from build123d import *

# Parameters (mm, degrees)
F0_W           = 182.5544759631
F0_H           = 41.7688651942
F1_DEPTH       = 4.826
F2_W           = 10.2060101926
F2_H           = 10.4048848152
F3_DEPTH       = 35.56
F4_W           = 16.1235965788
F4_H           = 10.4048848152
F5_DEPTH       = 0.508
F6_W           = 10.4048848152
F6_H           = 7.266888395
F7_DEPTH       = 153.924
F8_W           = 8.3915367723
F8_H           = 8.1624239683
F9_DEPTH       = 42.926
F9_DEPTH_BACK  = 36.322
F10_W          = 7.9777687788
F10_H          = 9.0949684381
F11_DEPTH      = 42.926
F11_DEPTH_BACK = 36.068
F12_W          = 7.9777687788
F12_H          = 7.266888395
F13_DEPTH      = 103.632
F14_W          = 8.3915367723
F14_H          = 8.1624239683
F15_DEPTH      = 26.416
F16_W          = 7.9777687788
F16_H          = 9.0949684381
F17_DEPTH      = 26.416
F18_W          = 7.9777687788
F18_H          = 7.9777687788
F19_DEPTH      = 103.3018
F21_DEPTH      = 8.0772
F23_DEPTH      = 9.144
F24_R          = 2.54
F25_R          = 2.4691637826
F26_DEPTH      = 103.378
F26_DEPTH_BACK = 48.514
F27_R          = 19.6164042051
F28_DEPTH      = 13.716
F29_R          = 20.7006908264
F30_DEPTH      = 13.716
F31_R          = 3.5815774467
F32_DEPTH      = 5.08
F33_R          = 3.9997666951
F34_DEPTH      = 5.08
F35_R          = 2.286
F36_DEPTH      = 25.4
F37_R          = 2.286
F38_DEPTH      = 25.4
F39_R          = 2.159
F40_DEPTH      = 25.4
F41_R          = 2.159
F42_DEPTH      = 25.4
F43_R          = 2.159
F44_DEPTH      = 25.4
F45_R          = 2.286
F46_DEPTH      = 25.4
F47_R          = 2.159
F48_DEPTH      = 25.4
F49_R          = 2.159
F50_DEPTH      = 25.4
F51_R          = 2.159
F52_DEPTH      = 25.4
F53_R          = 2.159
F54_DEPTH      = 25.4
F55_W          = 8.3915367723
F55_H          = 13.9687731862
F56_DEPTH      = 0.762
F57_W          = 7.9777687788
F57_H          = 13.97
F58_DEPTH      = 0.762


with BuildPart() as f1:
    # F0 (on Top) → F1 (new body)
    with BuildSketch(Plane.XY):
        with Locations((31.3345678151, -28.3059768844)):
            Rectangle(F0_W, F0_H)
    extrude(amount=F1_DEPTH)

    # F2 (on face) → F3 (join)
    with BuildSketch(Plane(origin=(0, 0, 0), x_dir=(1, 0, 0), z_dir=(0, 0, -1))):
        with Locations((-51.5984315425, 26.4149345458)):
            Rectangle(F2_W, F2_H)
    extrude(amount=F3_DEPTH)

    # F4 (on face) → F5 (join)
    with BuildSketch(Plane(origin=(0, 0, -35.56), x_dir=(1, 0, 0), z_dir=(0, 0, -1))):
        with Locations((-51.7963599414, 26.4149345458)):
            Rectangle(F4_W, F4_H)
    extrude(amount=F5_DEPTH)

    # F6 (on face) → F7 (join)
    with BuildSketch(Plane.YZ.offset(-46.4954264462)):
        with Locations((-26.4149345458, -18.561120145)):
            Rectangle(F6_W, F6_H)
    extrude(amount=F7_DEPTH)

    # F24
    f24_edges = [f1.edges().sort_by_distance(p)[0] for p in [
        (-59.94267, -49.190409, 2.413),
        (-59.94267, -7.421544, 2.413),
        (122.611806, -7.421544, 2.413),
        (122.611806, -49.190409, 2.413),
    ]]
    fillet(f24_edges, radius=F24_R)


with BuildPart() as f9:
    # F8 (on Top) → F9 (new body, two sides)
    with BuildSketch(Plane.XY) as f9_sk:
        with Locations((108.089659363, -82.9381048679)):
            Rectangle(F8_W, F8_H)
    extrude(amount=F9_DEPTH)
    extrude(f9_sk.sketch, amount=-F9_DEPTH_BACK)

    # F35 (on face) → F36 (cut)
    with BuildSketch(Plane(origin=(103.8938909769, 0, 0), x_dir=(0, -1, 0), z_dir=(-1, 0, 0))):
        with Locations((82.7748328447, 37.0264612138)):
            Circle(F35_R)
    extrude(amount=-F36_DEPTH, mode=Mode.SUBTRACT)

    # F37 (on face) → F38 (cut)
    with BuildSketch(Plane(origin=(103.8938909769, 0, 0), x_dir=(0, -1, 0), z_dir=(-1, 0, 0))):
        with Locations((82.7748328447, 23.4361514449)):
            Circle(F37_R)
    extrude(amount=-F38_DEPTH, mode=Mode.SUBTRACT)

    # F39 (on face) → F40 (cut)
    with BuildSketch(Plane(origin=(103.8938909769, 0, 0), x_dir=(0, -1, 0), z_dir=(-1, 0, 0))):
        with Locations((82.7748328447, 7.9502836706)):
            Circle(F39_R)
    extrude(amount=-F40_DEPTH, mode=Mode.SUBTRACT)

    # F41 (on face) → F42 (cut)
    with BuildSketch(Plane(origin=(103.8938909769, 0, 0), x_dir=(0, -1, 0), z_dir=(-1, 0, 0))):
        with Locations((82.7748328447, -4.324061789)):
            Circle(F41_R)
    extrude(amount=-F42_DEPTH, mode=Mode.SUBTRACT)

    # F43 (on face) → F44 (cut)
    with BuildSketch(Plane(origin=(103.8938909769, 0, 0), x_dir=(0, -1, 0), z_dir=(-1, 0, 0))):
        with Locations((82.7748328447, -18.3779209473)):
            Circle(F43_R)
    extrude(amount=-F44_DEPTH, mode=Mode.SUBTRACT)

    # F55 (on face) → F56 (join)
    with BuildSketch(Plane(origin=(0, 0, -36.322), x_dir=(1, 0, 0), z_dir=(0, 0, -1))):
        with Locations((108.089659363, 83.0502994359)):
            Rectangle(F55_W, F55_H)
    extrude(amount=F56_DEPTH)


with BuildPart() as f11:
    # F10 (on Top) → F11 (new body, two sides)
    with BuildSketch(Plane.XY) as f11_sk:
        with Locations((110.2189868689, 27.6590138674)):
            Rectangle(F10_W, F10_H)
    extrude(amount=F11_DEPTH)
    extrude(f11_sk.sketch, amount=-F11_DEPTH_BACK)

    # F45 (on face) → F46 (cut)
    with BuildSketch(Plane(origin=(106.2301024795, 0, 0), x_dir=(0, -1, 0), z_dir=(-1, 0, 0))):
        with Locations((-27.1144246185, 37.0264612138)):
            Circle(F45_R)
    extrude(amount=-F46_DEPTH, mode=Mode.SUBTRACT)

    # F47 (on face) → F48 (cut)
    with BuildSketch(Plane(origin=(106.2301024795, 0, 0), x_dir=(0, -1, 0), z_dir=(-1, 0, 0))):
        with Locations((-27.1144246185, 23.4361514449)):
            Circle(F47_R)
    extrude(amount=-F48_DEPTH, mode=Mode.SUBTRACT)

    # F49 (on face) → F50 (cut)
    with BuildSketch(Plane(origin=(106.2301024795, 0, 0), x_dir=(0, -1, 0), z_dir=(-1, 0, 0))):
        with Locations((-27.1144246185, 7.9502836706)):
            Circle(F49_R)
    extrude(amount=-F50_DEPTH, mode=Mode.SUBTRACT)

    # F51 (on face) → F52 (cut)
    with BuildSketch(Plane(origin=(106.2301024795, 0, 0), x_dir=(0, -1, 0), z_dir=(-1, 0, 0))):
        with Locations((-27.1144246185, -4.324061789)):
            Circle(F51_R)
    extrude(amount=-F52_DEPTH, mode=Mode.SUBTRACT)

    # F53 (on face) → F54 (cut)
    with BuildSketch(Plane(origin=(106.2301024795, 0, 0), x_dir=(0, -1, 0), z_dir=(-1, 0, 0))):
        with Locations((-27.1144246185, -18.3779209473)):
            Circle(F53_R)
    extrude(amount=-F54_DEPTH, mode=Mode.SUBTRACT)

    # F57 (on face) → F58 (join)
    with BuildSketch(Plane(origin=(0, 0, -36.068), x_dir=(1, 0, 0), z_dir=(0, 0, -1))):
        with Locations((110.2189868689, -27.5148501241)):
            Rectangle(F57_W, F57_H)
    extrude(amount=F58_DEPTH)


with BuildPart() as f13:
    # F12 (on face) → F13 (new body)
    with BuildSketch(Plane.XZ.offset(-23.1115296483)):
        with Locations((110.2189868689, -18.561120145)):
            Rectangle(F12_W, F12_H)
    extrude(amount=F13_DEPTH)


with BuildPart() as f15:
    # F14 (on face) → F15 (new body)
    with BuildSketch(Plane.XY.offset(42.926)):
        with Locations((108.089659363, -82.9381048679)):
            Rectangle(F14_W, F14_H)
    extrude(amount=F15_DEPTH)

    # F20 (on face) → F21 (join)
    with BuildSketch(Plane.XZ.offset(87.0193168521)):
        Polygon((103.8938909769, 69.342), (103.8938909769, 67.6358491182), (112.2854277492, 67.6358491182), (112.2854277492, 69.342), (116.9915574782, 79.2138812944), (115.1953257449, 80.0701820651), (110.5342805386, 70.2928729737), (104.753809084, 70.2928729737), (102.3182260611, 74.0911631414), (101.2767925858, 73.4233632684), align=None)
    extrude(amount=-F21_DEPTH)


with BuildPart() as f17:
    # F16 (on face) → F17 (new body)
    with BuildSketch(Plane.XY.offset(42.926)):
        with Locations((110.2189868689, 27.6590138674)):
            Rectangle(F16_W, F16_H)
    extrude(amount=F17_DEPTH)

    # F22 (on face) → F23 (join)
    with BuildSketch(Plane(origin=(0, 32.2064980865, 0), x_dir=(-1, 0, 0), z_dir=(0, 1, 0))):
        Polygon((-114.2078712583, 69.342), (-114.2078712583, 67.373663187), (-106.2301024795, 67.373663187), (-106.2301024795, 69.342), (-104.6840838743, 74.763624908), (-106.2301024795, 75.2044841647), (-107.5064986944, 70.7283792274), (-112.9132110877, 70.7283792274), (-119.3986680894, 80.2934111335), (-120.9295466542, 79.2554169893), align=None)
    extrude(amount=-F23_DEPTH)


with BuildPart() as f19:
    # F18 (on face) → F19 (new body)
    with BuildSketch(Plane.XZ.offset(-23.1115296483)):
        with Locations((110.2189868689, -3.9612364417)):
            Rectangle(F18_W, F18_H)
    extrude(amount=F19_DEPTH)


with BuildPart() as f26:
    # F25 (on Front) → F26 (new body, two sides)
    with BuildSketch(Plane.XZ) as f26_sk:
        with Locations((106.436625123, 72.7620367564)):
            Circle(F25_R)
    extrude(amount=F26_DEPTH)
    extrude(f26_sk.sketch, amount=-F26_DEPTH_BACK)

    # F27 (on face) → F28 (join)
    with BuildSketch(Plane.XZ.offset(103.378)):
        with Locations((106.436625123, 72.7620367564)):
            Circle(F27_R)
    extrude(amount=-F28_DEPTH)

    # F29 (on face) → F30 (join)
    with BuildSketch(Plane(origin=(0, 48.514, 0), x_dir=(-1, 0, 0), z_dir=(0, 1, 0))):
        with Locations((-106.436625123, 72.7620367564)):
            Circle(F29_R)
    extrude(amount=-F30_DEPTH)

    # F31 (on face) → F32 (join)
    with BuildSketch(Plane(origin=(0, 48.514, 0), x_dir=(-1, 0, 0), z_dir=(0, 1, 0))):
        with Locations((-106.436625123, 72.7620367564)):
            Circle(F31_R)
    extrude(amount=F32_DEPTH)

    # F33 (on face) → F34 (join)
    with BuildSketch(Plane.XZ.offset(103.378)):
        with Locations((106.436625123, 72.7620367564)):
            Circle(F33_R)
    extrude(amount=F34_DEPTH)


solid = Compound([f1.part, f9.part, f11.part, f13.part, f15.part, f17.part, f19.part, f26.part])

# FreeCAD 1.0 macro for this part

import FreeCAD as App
import Part
import Sketcher
Q = App.Units.Quantity


def edges_at(feature, points):
    """Names of the edges that pass closest to the given points."""
    edges = feature.Shape.Edges
    near = lambda p: min(range(len(edges)), key=lambda i: edges[i].distToShape(Part.Vertex(*p))[0])
    return sorted({f"Edge{near(p) + 1}" for p in points})


def add_polygon(sketch, points):
    """Adds a closed chain of lines whose ends are joined by coincident constraints."""
    first, n = sketch.GeometryCount, len(points)
    for a, b in zip(points, points[1:] + points[:1]):
        sketch.addGeometry(Part.LineSegment(App.Vector(*a, 0), App.Vector(*b, 0)), False)
    for i in range(n):
        sketch.addConstraint(Sketcher.Constraint("Coincident", first + i, 2, first + (i + 1) % n, 1))

doc = App.newDocument("Part")
params = doc.addObject("Spreadsheet::Sheet", "Params")
for row, (alias, value) in enumerate([
    ("pad1_length", "0.19 in"),
    ("pad2_length", "1.4 in"),
    ("pad3_length", "0.02 in"),
    ("pad4_length", "6.06 in"),
    ("fillet_radius", "0.1 in"),
    ("pad5_length", "1.69 in"),
    ("pad5_length2", "1.43 in"),
    ("sketch6_diameter", "0.18 in"),
    ("pocket1_length", "1 in"),
    ("sketch7_diameter", "0.18 in"),
    ("pocket2_length", "1 in"),
    ("sketch8_diameter", "0.17 in"),
    ("pocket3_length", "1 in"),
    ("sketch9_diameter", "0.17 in"),
    ("pocket4_length", "1 in"),
    ("sketch10_diameter", "0.17 in"),
    ("pocket5_length", "1 in"),
    ("pad6_length", "0.03 in"),
    ("pad7_length", "1.69 in"),
    ("pad7_length2", "1.42 in"),
    ("sketch13_diameter", "0.18 in"),
    ("pocket6_length", "1 in"),
    ("sketch14_diameter", "0.17 in"),
    ("pocket7_length", "1 in"),
    ("sketch15_diameter", "0.17 in"),
    ("pocket8_length", "1 in"),
    ("sketch16_diameter", "0.17 in"),
    ("pocket9_length", "1 in"),
    ("sketch17_diameter", "0.17 in"),
    ("pocket10_length", "1 in"),
    ("sketch18_height", "0.55 in"),
    ("pad8_length", "0.03 in"),
    ("pad9_length", "4.08 in"),
    ("pad10_length", "1.04 in"),
    ("pad11_length", "0.318 in"),
    ("pad12_length", "1.04 in"),
    ("pad13_length", "0.36 in"),
    ("pad14_length", "4.067 in"),
    ("pad15_length", "4.07 in"),
    ("pad15_length2", "1.91 in"),
    ("pad16_length", "0.54 in"),
    ("pad17_length", "0.54 in"),
    ("pad18_length", "0.2 in"),
    ("pad19_length", "0.2 in"),
], start=1):
    params.set(f"A{row}", alias)
    params.set(f"B{row}", "=" + value)
    params.setAlias(f"B{row}", alias)

body = doc.addObject("PartDesign::Body", "Body")

# Sketch on XY plane
sketch1 = doc.addObject("Sketcher::SketchObject", "Sketch")
body.addObject(sketch1)
sketch1.AttachmentSupport = (doc.XY_Plane, [""])
sketch1.MapMode = "FlatFace"
add_polygon(sketch1, [(-60, -7), (-60, -49), (123, -49), (123, -7)])  # lines 0-3
sketch1.addConstraint([
    Sketcher.Constraint("Vertical", 0),
    Sketcher.Constraint("Horizontal", 1),
    Sketcher.Constraint("Vertical", 2),
    Sketcher.Constraint("Horizontal", 3),
    Sketcher.Constraint("DistanceX", 1, 1, 1, 2, 182.554476),
    Sketcher.Constraint("DistanceY", 0, 2, 0, 1, 41.768865),
    Sketcher.Constraint("DistanceX", 0, 2, -1, 1, 59.94267),
    Sketcher.Constraint("DistanceY", 0, 2, -1, 1, 49.190409),
])
pad1 = doc.addObject("PartDesign::Pad", "Pad")
body.addObject(pad1)
pad1.Profile = sketch1
pad1.setExpression("Length", "Params.pad1_length")

# Sketch on XY plane
sketch2 = doc.addObject("Sketcher::SketchObject", "Sketch001")
body.addObject(sketch2)
sketch2.AttachmentSupport = (doc.XY_Plane, [""])
sketch2.MapMode = "FlatFace"
add_polygon(sketch2, [(-57, -32), (-57, -21), (-46, -21), (-46, -32)])  # lines 0-3
sketch2.addConstraint([
    Sketcher.Constraint("Vertical", 0),
    Sketcher.Constraint("Horizontal", 1),
    Sketcher.Constraint("Vertical", 2),
    Sketcher.Constraint("Horizontal", 3),
    Sketcher.Constraint("DistanceX", 1, 1, 1, 2, 10.20601),
    Sketcher.Constraint("DistanceY", 0, 1, 0, 2, 10.404885),
    Sketcher.Constraint("DistanceX", 0, 2, -1, 1, 56.701437),
    Sketcher.Constraint("DistanceY", 0, 2, -1, 1, 21.212492),
])
pad2 = doc.addObject("PartDesign::Pad", "Pad001")
body.addObject(pad2)
pad2.Profile = sketch2
pad2.setExpression("Length", "Params.pad2_length")
pad2.Reversed = True

# Sketch on XY plane
sketch3 = doc.addObject("Sketcher::SketchObject", "Sketch002")
body.addObject(sketch3)
sketch3.AttachmentSupport = (doc.XY_Plane, [""])
sketch3.MapMode = "FlatFace"
sketch3.AttachmentOffset = App.Placement(App.Vector(0, 0, -1.4 * 25.4), App.Rotation())
add_polygon(sketch3, [(-60, -32), (-60, -21), (-44, -21), (-44, -32)])  # lines 0-3
sketch3.addConstraint([
    Sketcher.Constraint("Vertical", 0),
    Sketcher.Constraint("Horizontal", 1),
    Sketcher.Constraint("Vertical", 2),
    Sketcher.Constraint("Horizontal", 3),
    Sketcher.Constraint("DistanceX", 1, 1, 1, 2, 16.123597),
    Sketcher.Constraint("DistanceY", 0, 1, 0, 2, 10.404885),
    Sketcher.Constraint("DistanceX", 0, 2, -1, 1, 59.858158),
    Sketcher.Constraint("DistanceY", 0, 2, -1, 1, 21.212492),
])
pad3 = doc.addObject("PartDesign::Pad", "Pad002")
body.addObject(pad3)
pad3.Profile = sketch3
pad3.setExpression("Length", "Params.pad3_length")
pad3.Reversed = True

# Sketch on YZ plane
sketch4 = doc.addObject("Sketcher::SketchObject", "Sketch003")
body.addObject(sketch4)
sketch4.AttachmentSupport = (doc.YZ_Plane, [""])
sketch4.MapMode = "FlatFace"
sketch4.AttachmentOffset = App.Placement(App.Vector(0, 0, -46.495426), App.Rotation())
add_polygon(sketch4, [(-32, -15), (-32, -22), (-21, -22), (-21, -15)])  # lines 0-3
sketch4.addConstraint([
    Sketcher.Constraint("Vertical", 0),
    Sketcher.Constraint("Horizontal", 1),
    Sketcher.Constraint("Vertical", 2),
    Sketcher.Constraint("Horizontal", 3),
    Sketcher.Constraint("DistanceY", 0, 2, 0, 1, 7.266888),
    Sketcher.Constraint("DistanceX", 1, 1, 1, 2, 10.404885),
    Sketcher.Constraint("DistanceX", 0, 2, -1, 1, 31.617377),
    Sketcher.Constraint("DistanceY", 0, 2, -1, 1, 22.194564),
])
pad4 = doc.addObject("PartDesign::Pad", "Pad003")
body.addObject(pad4)
pad4.Profile = sketch4
pad4.setExpression("Length", "Params.pad4_length")
doc.recompute()

fillet = doc.addObject("PartDesign::Fillet", "Fillet")
body.addObject(fillet)
fillet.Base = (pad4, edges_at(pad4, [
    (-59.943, -49.19, 2.413),
    (-59.943, -7.422, 2.413),
    (122.612, -7.422, 2.413),
    (122.612, -49.19, 2.413),
]))
fillet.setExpression("Radius", "Params.fillet_radius")
body2 = doc.addObject("PartDesign::Body", "Body001")

# Sketch on XY plane
sketch5 = doc.addObject("Sketcher::SketchObject", "Sketch004")
body2.addObject(sketch5)
sketch5.AttachmentSupport = (doc.getObject("XY_Plane001"), [""])
sketch5.MapMode = "FlatFace"
add_polygon(sketch5, [(104, -79), (104, -87), (112, -87), (112, -79)])  # lines 0-3
sketch5.addConstraint([
    Sketcher.Constraint("Vertical", 0),
    Sketcher.Constraint("Horizontal", 1),
    Sketcher.Constraint("Vertical", 2),
    Sketcher.Constraint("Horizontal", 3),
    Sketcher.Constraint("DistanceX", 1, 1, 1, 2, 8.391537),
    Sketcher.Constraint("DistanceY", 0, 2, 0, 1, 8.162424),
    Sketcher.Constraint("DistanceX", -1, 1, 0, 2, 103.893891),
    Sketcher.Constraint("DistanceY", 0, 2, -1, 1, 87.019317),
])
pad5 = doc.addObject("PartDesign::Pad", "Pad004")
body2.addObject(pad5)
pad5.Profile = sketch5
pad5.Type = "TwoLengths"
pad5.setExpression("Length", "Params.pad5_length")
pad5.setExpression("Length2", "Params.pad5_length2")

# Sketch on YZ plane
sketch6 = doc.addObject("Sketcher::SketchObject", "Sketch005")
body2.addObject(sketch6)
sketch6.AttachmentSupport = (doc.getObject("YZ_Plane001"), [""])
sketch6.MapMode = "FlatFace"
sketch6.AttachmentOffset = App.Placement(App.Vector(0, 0, 103.893891), App.Rotation())
sketch6.addGeometry(Part.Circle(App.Vector(-82.8, 37, 0), App.Vector(0, 0, 1), 2.3), False)
sketch6.addConstraint([
    Sketcher.Constraint("Diameter", 0, Q("0.18 in")),
    Sketcher.Constraint("DistanceY", -1, 1, 0, 3, 37.026461),
    Sketcher.Constraint("DistanceX", 0, 3, -1, 1, 82.774833),
])
sketch6.setExpression("Constraints[0]", "Params.sketch6_diameter")
pocket1 = doc.addObject("PartDesign::Pocket", "Pocket")
body2.addObject(pocket1)
pocket1.Profile = sketch6
pocket1.setExpression("Length", "Params.pocket1_length")
pocket1.Reversed = True

# Sketch on YZ plane
sketch7 = doc.addObject("Sketcher::SketchObject", "Sketch006")
body2.addObject(sketch7)
sketch7.AttachmentSupport = (doc.getObject("YZ_Plane001"), [""])
sketch7.MapMode = "FlatFace"
sketch7.AttachmentOffset = App.Placement(App.Vector(0, 0, 103.893891), App.Rotation())
sketch7.addGeometry(Part.Circle(App.Vector(-82.8, 23.4, 0), App.Vector(0, 0, 1), 2.3), False)
sketch7.addConstraint([
    Sketcher.Constraint("Diameter", 0, Q("0.18 in")),
    Sketcher.Constraint("DistanceY", -1, 1, 0, 3, 23.436151),
    Sketcher.Constraint("DistanceX", 0, 3, -1, 1, 82.774833),
])
sketch7.setExpression("Constraints[0]", "Params.sketch7_diameter")
pocket2 = doc.addObject("PartDesign::Pocket", "Pocket001")
body2.addObject(pocket2)
pocket2.Profile = sketch7
pocket2.setExpression("Length", "Params.pocket2_length")
pocket2.Reversed = True

# Sketch on YZ plane
sketch8 = doc.addObject("Sketcher::SketchObject", "Sketch007")
body2.addObject(sketch8)
sketch8.AttachmentSupport = (doc.getObject("YZ_Plane001"), [""])
sketch8.MapMode = "FlatFace"
sketch8.AttachmentOffset = App.Placement(App.Vector(0, 0, 103.893891), App.Rotation())
sketch8.addGeometry(Part.Circle(App.Vector(-82.8, 8, 0), App.Vector(0, 0, 1), 2.2), False)
sketch8.addConstraint([
    Sketcher.Constraint("Diameter", 0, Q("0.17 in")),
    Sketcher.Constraint("DistanceX", 0, 3, -1, 1, 82.774833),
    Sketcher.Constraint("DistanceY", -1, 1, 0, 3, 7.950284),
])
sketch8.setExpression("Constraints[0]", "Params.sketch8_diameter")
pocket3 = doc.addObject("PartDesign::Pocket", "Pocket002")
body2.addObject(pocket3)
pocket3.Profile = sketch8
pocket3.setExpression("Length", "Params.pocket3_length")
pocket3.Reversed = True

# Sketch on YZ plane
sketch9 = doc.addObject("Sketcher::SketchObject", "Sketch008")
body2.addObject(sketch9)
sketch9.AttachmentSupport = (doc.getObject("YZ_Plane001"), [""])
sketch9.MapMode = "FlatFace"
sketch9.AttachmentOffset = App.Placement(App.Vector(0, 0, 103.893891), App.Rotation())
sketch9.addGeometry(Part.Circle(App.Vector(-82.8, -4.3, 0), App.Vector(0, 0, 1), 2.2), False)
sketch9.addConstraint([
    Sketcher.Constraint("Diameter", 0, Q("0.17 in")),
    Sketcher.Constraint("DistanceY", 0, 3, -1, 1, 4.324062),
    Sketcher.Constraint("DistanceX", 0, 3, -1, 1, 82.774833),
])
sketch9.setExpression("Constraints[0]", "Params.sketch9_diameter")
pocket4 = doc.addObject("PartDesign::Pocket", "Pocket003")
body2.addObject(pocket4)
pocket4.Profile = sketch9
pocket4.setExpression("Length", "Params.pocket4_length")
pocket4.Reversed = True

# Sketch on YZ plane
sketch10 = doc.addObject("Sketcher::SketchObject", "Sketch009")
body2.addObject(sketch10)
sketch10.AttachmentSupport = (doc.getObject("YZ_Plane001"), [""])
sketch10.MapMode = "FlatFace"
sketch10.AttachmentOffset = App.Placement(App.Vector(0, 0, 103.893891), App.Rotation())
sketch10.addGeometry(Part.Circle(App.Vector(-82.8, -18.4, 0), App.Vector(0, 0, 1), 2.2), False)
sketch10.addConstraint([
    Sketcher.Constraint("Diameter", 0, Q("0.17 in")),
    Sketcher.Constraint("DistanceY", 0, 3, -1, 1, 18.377921),
    Sketcher.Constraint("DistanceX", 0, 3, -1, 1, 82.774833),
])
sketch10.setExpression("Constraints[0]", "Params.sketch10_diameter")
pocket5 = doc.addObject("PartDesign::Pocket", "Pocket004")
body2.addObject(pocket5)
pocket5.Profile = sketch10
pocket5.setExpression("Length", "Params.pocket5_length")
pocket5.Reversed = True

# Sketch on XY plane
sketch11 = doc.addObject("Sketcher::SketchObject", "Sketch010")
body2.addObject(sketch11)
sketch11.AttachmentSupport = (doc.getObject("XY_Plane001"), [""])
sketch11.MapMode = "FlatFace"
sketch11.AttachmentOffset = App.Placement(App.Vector(0, 0, -1.43 * 25.4), App.Rotation())
add_polygon(sketch11, [(104, -90), (104, -76), (112, -76), (112, -90)])  # lines 0-3
sketch11.addConstraint([
    Sketcher.Constraint("Vertical", 0),
    Sketcher.Constraint("Horizontal", 1),
    Sketcher.Constraint("Vertical", 2),
    Sketcher.Constraint("Horizontal", 3),
    Sketcher.Constraint("DistanceX", 1, 1, 1, 2, 8.391537),
    Sketcher.Constraint("DistanceY", 0, 1, 0, 2, 13.968773),
    Sketcher.Constraint("DistanceX", -1, 1, 0, 2, 103.893891),
    Sketcher.Constraint("DistanceY", 0, 2, -1, 1, 76.065913),
])
pad6 = doc.addObject("PartDesign::Pad", "Pad005")
body2.addObject(pad6)
pad6.Profile = sketch11
pad6.setExpression("Length", "Params.pad6_length")
pad6.Reversed = True
body3 = doc.addObject("PartDesign::Body", "Body002")

# Sketch on XY plane
sketch12 = doc.addObject("Sketcher::SketchObject", "Sketch011")
body3.addObject(sketch12)
sketch12.AttachmentSupport = (doc.getObject("XY_Plane002"), [""])
sketch12.MapMode = "FlatFace"
add_polygon(sketch12, [(106, 32), (106, 23), (114, 23), (114, 32)])  # lines 0-3
sketch12.addConstraint([
    Sketcher.Constraint("Vertical", 0),
    Sketcher.Constraint("Horizontal", 1),
    Sketcher.Constraint("Vertical", 2),
    Sketcher.Constraint("Horizontal", 3),
    Sketcher.Constraint("DistanceX", 1, 1, 1, 2, 7.977769),
    Sketcher.Constraint("DistanceY", 0, 2, 0, 1, 9.094968),
    Sketcher.Constraint("DistanceY", -1, 1, 2, 2, 32.206498),
    Sketcher.Constraint("DistanceX", -1, 1, 1, 2, 114.207871),
])
pad7 = doc.addObject("PartDesign::Pad", "Pad006")
body3.addObject(pad7)
pad7.Profile = sketch12
pad7.Type = "TwoLengths"
pad7.setExpression("Length", "Params.pad7_length")
pad7.setExpression("Length2", "Params.pad7_length2")

# Sketch on YZ plane
sketch13 = doc.addObject("Sketcher::SketchObject", "Sketch012")
body3.addObject(sketch13)
sketch13.AttachmentSupport = (doc.getObject("YZ_Plane002"), [""])
sketch13.MapMode = "FlatFace"
sketch13.AttachmentOffset = App.Placement(App.Vector(0, 0, 106.230102), App.Rotation())
sketch13.addGeometry(Part.Circle(App.Vector(27.1, 37, 0), App.Vector(0, 0, 1), 2.3), False)
sketch13.addConstraint([
    Sketcher.Constraint("Diameter", 0, Q("0.18 in")),
    Sketcher.Constraint("DistanceY", -1, 1, 0, 3, 37.026461),
    Sketcher.Constraint("DistanceX", -1, 1, 0, 3, 27.114425),
])
sketch13.setExpression("Constraints[0]", "Params.sketch13_diameter")
pocket6 = doc.addObject("PartDesign::Pocket", "Pocket005")
body3.addObject(pocket6)
pocket6.Profile = sketch13
pocket6.setExpression("Length", "Params.pocket6_length")
pocket6.Reversed = True

# Sketch on YZ plane
sketch14 = doc.addObject("Sketcher::SketchObject", "Sketch013")
body3.addObject(sketch14)
sketch14.AttachmentSupport = (doc.getObject("YZ_Plane002"), [""])
sketch14.MapMode = "FlatFace"
sketch14.AttachmentOffset = App.Placement(App.Vector(0, 0, 106.230102), App.Rotation())
sketch14.addGeometry(Part.Circle(App.Vector(27.1, 23.4, 0), App.Vector(0, 0, 1), 2.2), False)
sketch14.addConstraint([
    Sketcher.Constraint("Diameter", 0, Q("0.17 in")),
    Sketcher.Constraint("DistanceY", -1, 1, 0, 3, 23.436151),
    Sketcher.Constraint("DistanceX", -1, 1, 0, 3, 27.114425),
])
sketch14.setExpression("Constraints[0]", "Params.sketch14_diameter")
pocket7 = doc.addObject("PartDesign::Pocket", "Pocket006")
body3.addObject(pocket7)
pocket7.Profile = sketch14
pocket7.setExpression("Length", "Params.pocket7_length")
pocket7.Reversed = True

# Sketch on YZ plane
sketch15 = doc.addObject("Sketcher::SketchObject", "Sketch014")
body3.addObject(sketch15)
sketch15.AttachmentSupport = (doc.getObject("YZ_Plane002"), [""])
sketch15.MapMode = "FlatFace"
sketch15.AttachmentOffset = App.Placement(App.Vector(0, 0, 106.230102), App.Rotation())
sketch15.addGeometry(Part.Circle(App.Vector(27.1, 8, 0), App.Vector(0, 0, 1), 2.2), False)
sketch15.addConstraint([
    Sketcher.Constraint("Diameter", 0, Q("0.17 in")),
    Sketcher.Constraint("DistanceX", -1, 1, 0, 3, 27.114425),
    Sketcher.Constraint("DistanceY", -1, 1, 0, 3, 7.950284),
])
sketch15.setExpression("Constraints[0]", "Params.sketch15_diameter")
pocket8 = doc.addObject("PartDesign::Pocket", "Pocket007")
body3.addObject(pocket8)
pocket8.Profile = sketch15
pocket8.setExpression("Length", "Params.pocket8_length")
pocket8.Reversed = True

# Sketch on YZ plane
sketch16 = doc.addObject("Sketcher::SketchObject", "Sketch015")
body3.addObject(sketch16)
sketch16.AttachmentSupport = (doc.getObject("YZ_Plane002"), [""])
sketch16.MapMode = "FlatFace"
sketch16.AttachmentOffset = App.Placement(App.Vector(0, 0, 106.230102), App.Rotation())
sketch16.addGeometry(Part.Circle(App.Vector(27.1, -4.3, 0), App.Vector(0, 0, 1), 2.2), False)
sketch16.addConstraint([
    Sketcher.Constraint("Diameter", 0, Q("0.17 in")),
    Sketcher.Constraint("DistanceY", 0, 3, -1, 1, 4.324062),
    Sketcher.Constraint("DistanceX", -1, 1, 0, 3, 27.114425),
])
sketch16.setExpression("Constraints[0]", "Params.sketch16_diameter")
pocket9 = doc.addObject("PartDesign::Pocket", "Pocket008")
body3.addObject(pocket9)
pocket9.Profile = sketch16
pocket9.setExpression("Length", "Params.pocket9_length")
pocket9.Reversed = True

# Sketch on YZ plane
sketch17 = doc.addObject("Sketcher::SketchObject", "Sketch016")
body3.addObject(sketch17)
sketch17.AttachmentSupport = (doc.getObject("YZ_Plane002"), [""])
sketch17.MapMode = "FlatFace"
sketch17.AttachmentOffset = App.Placement(App.Vector(0, 0, 106.230102), App.Rotation())
sketch17.addGeometry(Part.Circle(App.Vector(27.1, -18.4, 0), App.Vector(0, 0, 1), 2.2), False)
sketch17.addConstraint([
    Sketcher.Constraint("Diameter", 0, Q("0.17 in")),
    Sketcher.Constraint("DistanceY", 0, 3, -1, 1, 18.377921),
    Sketcher.Constraint("DistanceX", -1, 1, 0, 3, 27.114425),
])
sketch17.setExpression("Constraints[0]", "Params.sketch17_diameter")
pocket10 = doc.addObject("PartDesign::Pocket", "Pocket009")
body3.addObject(pocket10)
pocket10.Profile = sketch17
pocket10.setExpression("Length", "Params.pocket10_length")
pocket10.Reversed = True

# Sketch on XY plane
sketch18 = doc.addObject("Sketcher::SketchObject", "Sketch017")
body3.addObject(sketch18)
sketch18.AttachmentSupport = (doc.getObject("XY_Plane002"), [""])
sketch18.MapMode = "FlatFace"
sketch18.AttachmentOffset = App.Placement(App.Vector(0, 0, -1.42 * 25.4), App.Rotation())
add_polygon(sketch18, [(106, 21), (106, 34), (114, 34), (114, 21)])  # lines 0-3
sketch18.addConstraint([
    Sketcher.Constraint("Vertical", 0),
    Sketcher.Constraint("Horizontal", 1),
    Sketcher.Constraint("Vertical", 2),
    Sketcher.Constraint("Horizontal", 3),
    Sketcher.Constraint("DistanceY", 0, 1, 0, 2, Q("0.55 in")),
    Sketcher.Constraint("DistanceX", 1, 1, 1, 2, 7.977769),
    Sketcher.Constraint("DistanceY", -1, 1, 0, 2, 34.49985),
    Sketcher.Constraint("DistanceX", -1, 1, 1, 2, 114.207871),
])
sketch18.setExpression("Constraints[8]", "Params.sketch18_height")
pad8 = doc.addObject("PartDesign::Pad", "Pad007")
body3.addObject(pad8)
pad8.Profile = sketch18
pad8.setExpression("Length", "Params.pad8_length")
pad8.Reversed = True
body4 = doc.addObject("PartDesign::Body", "Body003")

# Sketch on XZ plane
sketch19 = doc.addObject("Sketcher::SketchObject", "Sketch018")
body4.addObject(sketch19)
sketch19.AttachmentSupport = (doc.getObject("XZ_Plane003"), [""])
sketch19.MapMode = "FlatFace"
sketch19.AttachmentOffset = App.Placement(App.Vector(0, 0, -23.11153), App.Rotation())
add_polygon(sketch19, [(106, -15), (106, -22), (114, -22), (114, -15)])  # lines 0-3
sketch19.addConstraint([
    Sketcher.Constraint("Vertical", 0),
    Sketcher.Constraint("Horizontal", 1),
    Sketcher.Constraint("Vertical", 2),
    Sketcher.Constraint("Horizontal", 3),
    Sketcher.Constraint("DistanceX", 1, 1, 1, 2, 7.977769),
    Sketcher.Constraint("DistanceY", 0, 2, 0, 1, 7.266888),
    Sketcher.Constraint("DistanceX", -1, 1, 1, 2, 114.207871),
    Sketcher.Constraint("DistanceY", 0, 2, -1, 1, 22.194564),
])
pad9 = doc.addObject("PartDesign::Pad", "Pad008")
body4.addObject(pad9)
pad9.Profile = sketch19
pad9.setExpression("Length", "Params.pad9_length")
body5 = doc.addObject("PartDesign::Body", "Body004")

# Sketch on XY plane
sketch20 = doc.addObject("Sketcher::SketchObject", "Sketch019")
body5.addObject(sketch20)
sketch20.AttachmentSupport = (doc.getObject("XY_Plane004"), [""])
sketch20.MapMode = "FlatFace"
sketch20.AttachmentOffset = App.Placement(App.Vector(0, 0, 1.69 * 25.4), App.Rotation())
add_polygon(sketch20, [(104, -79), (104, -87), (112, -87), (112, -79)])  # lines 0-3
sketch20.addConstraint([
    Sketcher.Constraint("Vertical", 0),
    Sketcher.Constraint("Horizontal", 1),
    Sketcher.Constraint("Vertical", 2),
    Sketcher.Constraint("Horizontal", 3),
    Sketcher.Constraint("DistanceX", 1, 1, 1, 2, 8.391537),
    Sketcher.Constraint("DistanceY", 0, 2, 0, 1, 8.162424),
    Sketcher.Constraint("DistanceX", -1, 1, 0, 2, 103.893891),
    Sketcher.Constraint("DistanceY", 0, 2, -1, 1, 87.019317),
])
pad10 = doc.addObject("PartDesign::Pad", "Pad009")
body5.addObject(pad10)
pad10.Profile = sketch20
pad10.setExpression("Length", "Params.pad10_length")

# Sketch on XZ plane
sketch21 = doc.addObject("Sketcher::SketchObject", "Sketch020")
body5.addObject(sketch21)
sketch21.AttachmentSupport = (doc.getObject("XZ_Plane004"), [""])
sketch21.MapMode = "FlatFace"
sketch21.AttachmentOffset = App.Placement(App.Vector(0, 0, 87.019317), App.Rotation())
add_polygon(sketch21, [(103.9, 69.3), (103.9, 67.6), (112.3, 67.6), (112.3, 69.3), (117, 79.2), (115.2, 80.1), (110.5, 70.3), (104.8, 70.3), (102.3, 74.1), (101.3, 73.4)])  # lines 0-9
sketch21.addConstraint([
    Sketcher.Constraint("Vertical", 0),
    Sketcher.Constraint("Horizontal", 1),
    Sketcher.Constraint("Vertical", 2),
    Sketcher.Constraint("Horizontal", 6),
    Sketcher.Constraint("Perpendicular", 3, 4),
    Sketcher.Constraint("Perpendicular", 4, 5),
    Sketcher.Constraint("Perpendicular", 7, 8),
    Sketcher.Constraint("Perpendicular", 8, 9),
    Sketcher.Constraint("Horizontal", 2, 2, 9, 2),
    Sketcher.Constraint("DistanceY", -1, 1, 2, 2, Q("2.73 in")),
    Sketcher.Constraint("Distance", 4, 1.989899),
    Sketcher.Constraint("DistanceX", 6, 2, 6, 1, 5.780471),
    Sketcher.Constraint("DistanceY", 0, 2, 0, 1, 1.706151),
    Sketcher.Constraint("DistanceY", 3, 2, 4, 2, 0.856301),
    Sketcher.Constraint("DistanceX", 7, 2, 2, 2, 9.967202),
    Sketcher.Constraint("DistanceY", 8, 2, 7, 2, 0.6678),
    Sketcher.Constraint("DistanceX", 8, 2, 0, 2, 2.617098),
    Sketcher.Constraint("Distance", 8, 1.23715),
    Sketcher.Constraint("DistanceX", -1, 1, 0, 2, 103.893891),
    Sketcher.Constraint("DistanceY", -1, 1, 3, 2, 79.213881),
])
pad11 = doc.addObject("PartDesign::Pad", "Pad010")
body5.addObject(pad11)
pad11.Profile = sketch21
pad11.setExpression("Length", "Params.pad11_length")
pad11.Reversed = True
body6 = doc.addObject("PartDesign::Body", "Body005")

# Sketch on XY plane
sketch22 = doc.addObject("Sketcher::SketchObject", "Sketch021")
body6.addObject(sketch22)
sketch22.AttachmentSupport = (doc.getObject("XY_Plane005"), [""])
sketch22.MapMode = "FlatFace"
sketch22.AttachmentOffset = App.Placement(App.Vector(0, 0, 1.69 * 25.4), App.Rotation())
add_polygon(sketch22, [(106, 32), (106, 23), (114, 23), (114, 32)])  # lines 0-3
sketch22.addConstraint([
    Sketcher.Constraint("Vertical", 0),
    Sketcher.Constraint("Horizontal", 1),
    Sketcher.Constraint("Vertical", 2),
    Sketcher.Constraint("Horizontal", 3),
    Sketcher.Constraint("DistanceX", 1, 1, 1, 2, 7.977769),
    Sketcher.Constraint("DistanceY", 0, 2, 0, 1, 9.094968),
    Sketcher.Constraint("DistanceY", -1, 1, 2, 2, 32.206498),
    Sketcher.Constraint("DistanceX", -1, 1, 1, 2, 114.207871),
])
pad12 = doc.addObject("PartDesign::Pad", "Pad011")
body6.addObject(pad12)
pad12.Profile = sketch22
pad12.setExpression("Length", "Params.pad12_length")

# Sketch on XZ plane
sketch23 = doc.addObject("Sketcher::SketchObject", "Sketch022")
body6.addObject(sketch23)
sketch23.AttachmentSupport = (doc.getObject("XZ_Plane005"), [""])
sketch23.MapMode = "FlatFace"
sketch23.AttachmentOffset = App.Placement(App.Vector(0, 0, -32.206498), App.Rotation())
add_polygon(sketch23, [(114.2, 69.3), (114.2, 67.4), (106.2, 67.4), (106.2, 69.3), (104.7, 74.8), (106.2, 75.2), (107.5, 70.7), (112.9, 70.7), (119.4, 80.3), (120.9, 79.3)])  # lines 0-9
sketch23.addConstraint([
    Sketcher.Constraint("Vertical", 0),
    Sketcher.Constraint("Horizontal", 1),
    Sketcher.Constraint("Vertical", 2),
    Sketcher.Constraint("Horizontal", 6),
    Sketcher.Constraint("Perpendicular", 3, 4),
    Sketcher.Constraint("Perpendicular", 4, 5),
    Sketcher.Constraint("Perpendicular", 7, 8),
    Sketcher.Constraint("Perpendicular", 8, 9),
    Sketcher.Constraint("Horizontal", 2, 2, 9, 2),
    Sketcher.Constraint("Vertical", 2, 2, 4, 2),
    Sketcher.Constraint("DistanceY", -1, 1, 2, 2, Q("2.73 in")),
    Sketcher.Constraint("DistanceY", 1, 2, 4, 2, Q("0.3083 in")),
    Sketcher.Constraint("Distance", 8, 1.8496),
    Sketcher.Constraint("DistanceX", 1, 2, 1, 1, 7.977769),
    Sketcher.Constraint("DistanceX", -1, 1, 5, 2, 107.506499),
    Sketcher.Constraint("DistanceX", 6, 1, 6, 2, 5.406712),
    Sketcher.Constraint("DistanceY", 0, 2, 0, 1, 1.968337),
    Sketcher.Constraint("DistanceX", -1, 1, 0, 2, 114.207871),
    Sketcher.Constraint("DistanceY", -1, 1, 5, 2, 70.728379),
    Sketcher.Constraint("DistanceX", -1, 1, 7, 2, 119.398668),
])
pad13 = doc.addObject("PartDesign::Pad", "Pad012")
body6.addObject(pad13)
pad13.Profile = sketch23
pad13.setExpression("Length", "Params.pad13_length")
body7 = doc.addObject("PartDesign::Body", "Body006")

# Sketch on XZ plane
sketch24 = doc.addObject("Sketcher::SketchObject", "Sketch023")
body7.addObject(sketch24)
sketch24.AttachmentSupport = (doc.getObject("XZ_Plane006"), [""])
sketch24.MapMode = "FlatFace"
sketch24.AttachmentOffset = App.Placement(App.Vector(0, 0, -23.11153), App.Rotation())
add_polygon(sketch24, [(106, 0), (106, -8), (114, -8), (114, 0)])  # lines 0-3
sketch24.addConstraint([
    Sketcher.Constraint("Vertical", 0),
    Sketcher.Constraint("Horizontal", 1),
    Sketcher.Constraint("Vertical", 2),
    Sketcher.Constraint("Horizontal", 3),
    Sketcher.Constraint("Equal", 3, 0),
    Sketcher.Constraint("DistanceX", 1, 1, 1, 2, 7.977769),
    Sketcher.Constraint("DistanceY", 0, 2, -1, 1, 7.950121),
    Sketcher.Constraint("DistanceX", -1, 1, 1, 2, 114.207871),
])
pad14 = doc.addObject("PartDesign::Pad", "Pad013")
body7.addObject(pad14)
pad14.Profile = sketch24
pad14.setExpression("Length", "Params.pad14_length")
body8 = doc.addObject("PartDesign::Body", "Body007")

# Sketch on XZ plane
sketch25 = doc.addObject("Sketcher::SketchObject", "Sketch024")
body8.addObject(sketch25)
sketch25.AttachmentSupport = (doc.getObject("XZ_Plane007"), [""])
sketch25.MapMode = "FlatFace"
sketch25.addGeometry(Part.Circle(App.Vector(106.4, 72.8, 0), App.Vector(0, 0, 1), 2.5), False)
sketch25.addConstraint([
    Sketcher.Constraint("Diameter", 0, 4.938328),
    Sketcher.Constraint("DistanceX", -1, 1, 0, 3, 106.436625),
    Sketcher.Constraint("DistanceY", -1, 1, 0, 3, 72.762037),
])
pad15 = doc.addObject("PartDesign::Pad", "Pad014")
body8.addObject(pad15)
pad15.Profile = sketch25
pad15.Type = "TwoLengths"
pad15.setExpression("Length", "Params.pad15_length")
pad15.setExpression("Length2", "Params.pad15_length2")

# Sketch on XZ plane
sketch26 = doc.addObject("Sketcher::SketchObject", "Sketch025")
body8.addObject(sketch26)
sketch26.AttachmentSupport = (doc.getObject("XZ_Plane007"), [""])
sketch26.MapMode = "FlatFace"
sketch26.AttachmentOffset = App.Placement(App.Vector(0, 0, 4.07 * 25.4), App.Rotation())
sketch26.addGeometry(Part.Circle(App.Vector(106, 73, 0), App.Vector(0, 0, 1), 20), False)
sketch26.addConstraint([
    Sketcher.Constraint("Diameter", 0, 39.232808),
    Sketcher.Constraint("DistanceX", -1, 1, 0, 3, 106.436625),
    Sketcher.Constraint("DistanceY", -1, 1, 0, 3, 72.762037),
])
pad16 = doc.addObject("PartDesign::Pad", "Pad015")
body8.addObject(pad16)
pad16.Profile = sketch26
pad16.setExpression("Length", "Params.pad16_length")
pad16.Reversed = True

# Sketch on XZ plane
sketch27 = doc.addObject("Sketcher::SketchObject", "Sketch026")
body8.addObject(sketch27)
sketch27.AttachmentSupport = (doc.getObject("XZ_Plane007"), [""])
sketch27.MapMode = "FlatFace"
sketch27.AttachmentOffset = App.Placement(App.Vector(0, 0, -1.91 * 25.4), App.Rotation())
sketch27.addGeometry(Part.Circle(App.Vector(106, 73, 0), App.Vector(0, 0, 1), 21), False)
sketch27.addConstraint([
    Sketcher.Constraint("Diameter", 0, 41.401382),
    Sketcher.Constraint("DistanceX", -1, 1, 0, 3, 106.436625),
    Sketcher.Constraint("DistanceY", -1, 1, 0, 3, 72.762037),
])
pad17 = doc.addObject("PartDesign::Pad", "Pad016")
body8.addObject(pad17)
pad17.Profile = sketch27
pad17.setExpression("Length", "Params.pad17_length")

# Sketch on XZ plane
sketch28 = doc.addObject("Sketcher::SketchObject", "Sketch027")
body8.addObject(sketch28)
sketch28.AttachmentSupport = (doc.getObject("XZ_Plane007"), [""])
sketch28.MapMode = "FlatFace"
sketch28.AttachmentOffset = App.Placement(App.Vector(0, 0, -1.91 * 25.4), App.Rotation())
sketch28.addGeometry(Part.Circle(App.Vector(106.4, 72.8, 0), App.Vector(0, 0, 1), 3.6), False)
sketch28.addConstraint([
    Sketcher.Constraint("Diameter", 0, 7.163155),
    Sketcher.Constraint("DistanceX", -1, 1, 0, 3, 106.436625),
    Sketcher.Constraint("DistanceY", -1, 1, 0, 3, 72.762037),
])
pad18 = doc.addObject("PartDesign::Pad", "Pad017")
body8.addObject(pad18)
pad18.Profile = sketch28
pad18.setExpression("Length", "Params.pad18_length")
pad18.Reversed = True

# Sketch on XZ plane
sketch29 = doc.addObject("Sketcher::SketchObject", "Sketch028")
body8.addObject(sketch29)
sketch29.AttachmentSupport = (doc.getObject("XZ_Plane007"), [""])
sketch29.MapMode = "FlatFace"
sketch29.AttachmentOffset = App.Placement(App.Vector(0, 0, 4.07 * 25.4), App.Rotation())
sketch29.addGeometry(Part.Circle(App.Vector(106.4, 72.8, 0), App.Vector(0, 0, 1), 4), False)
sketch29.addConstraint([
    Sketcher.Constraint("Diameter", 0, 7.999533),
    Sketcher.Constraint("DistanceX", -1, 1, 0, 3, 106.436625),
    Sketcher.Constraint("DistanceY", -1, 1, 0, 3, 72.762037),
])
pad19 = doc.addObject("PartDesign::Pad", "Pad018")
body8.addObject(pad19)
pad19.Profile = sketch29
pad19.setExpression("Length", "Params.pad19_length")

doc.recompute()
